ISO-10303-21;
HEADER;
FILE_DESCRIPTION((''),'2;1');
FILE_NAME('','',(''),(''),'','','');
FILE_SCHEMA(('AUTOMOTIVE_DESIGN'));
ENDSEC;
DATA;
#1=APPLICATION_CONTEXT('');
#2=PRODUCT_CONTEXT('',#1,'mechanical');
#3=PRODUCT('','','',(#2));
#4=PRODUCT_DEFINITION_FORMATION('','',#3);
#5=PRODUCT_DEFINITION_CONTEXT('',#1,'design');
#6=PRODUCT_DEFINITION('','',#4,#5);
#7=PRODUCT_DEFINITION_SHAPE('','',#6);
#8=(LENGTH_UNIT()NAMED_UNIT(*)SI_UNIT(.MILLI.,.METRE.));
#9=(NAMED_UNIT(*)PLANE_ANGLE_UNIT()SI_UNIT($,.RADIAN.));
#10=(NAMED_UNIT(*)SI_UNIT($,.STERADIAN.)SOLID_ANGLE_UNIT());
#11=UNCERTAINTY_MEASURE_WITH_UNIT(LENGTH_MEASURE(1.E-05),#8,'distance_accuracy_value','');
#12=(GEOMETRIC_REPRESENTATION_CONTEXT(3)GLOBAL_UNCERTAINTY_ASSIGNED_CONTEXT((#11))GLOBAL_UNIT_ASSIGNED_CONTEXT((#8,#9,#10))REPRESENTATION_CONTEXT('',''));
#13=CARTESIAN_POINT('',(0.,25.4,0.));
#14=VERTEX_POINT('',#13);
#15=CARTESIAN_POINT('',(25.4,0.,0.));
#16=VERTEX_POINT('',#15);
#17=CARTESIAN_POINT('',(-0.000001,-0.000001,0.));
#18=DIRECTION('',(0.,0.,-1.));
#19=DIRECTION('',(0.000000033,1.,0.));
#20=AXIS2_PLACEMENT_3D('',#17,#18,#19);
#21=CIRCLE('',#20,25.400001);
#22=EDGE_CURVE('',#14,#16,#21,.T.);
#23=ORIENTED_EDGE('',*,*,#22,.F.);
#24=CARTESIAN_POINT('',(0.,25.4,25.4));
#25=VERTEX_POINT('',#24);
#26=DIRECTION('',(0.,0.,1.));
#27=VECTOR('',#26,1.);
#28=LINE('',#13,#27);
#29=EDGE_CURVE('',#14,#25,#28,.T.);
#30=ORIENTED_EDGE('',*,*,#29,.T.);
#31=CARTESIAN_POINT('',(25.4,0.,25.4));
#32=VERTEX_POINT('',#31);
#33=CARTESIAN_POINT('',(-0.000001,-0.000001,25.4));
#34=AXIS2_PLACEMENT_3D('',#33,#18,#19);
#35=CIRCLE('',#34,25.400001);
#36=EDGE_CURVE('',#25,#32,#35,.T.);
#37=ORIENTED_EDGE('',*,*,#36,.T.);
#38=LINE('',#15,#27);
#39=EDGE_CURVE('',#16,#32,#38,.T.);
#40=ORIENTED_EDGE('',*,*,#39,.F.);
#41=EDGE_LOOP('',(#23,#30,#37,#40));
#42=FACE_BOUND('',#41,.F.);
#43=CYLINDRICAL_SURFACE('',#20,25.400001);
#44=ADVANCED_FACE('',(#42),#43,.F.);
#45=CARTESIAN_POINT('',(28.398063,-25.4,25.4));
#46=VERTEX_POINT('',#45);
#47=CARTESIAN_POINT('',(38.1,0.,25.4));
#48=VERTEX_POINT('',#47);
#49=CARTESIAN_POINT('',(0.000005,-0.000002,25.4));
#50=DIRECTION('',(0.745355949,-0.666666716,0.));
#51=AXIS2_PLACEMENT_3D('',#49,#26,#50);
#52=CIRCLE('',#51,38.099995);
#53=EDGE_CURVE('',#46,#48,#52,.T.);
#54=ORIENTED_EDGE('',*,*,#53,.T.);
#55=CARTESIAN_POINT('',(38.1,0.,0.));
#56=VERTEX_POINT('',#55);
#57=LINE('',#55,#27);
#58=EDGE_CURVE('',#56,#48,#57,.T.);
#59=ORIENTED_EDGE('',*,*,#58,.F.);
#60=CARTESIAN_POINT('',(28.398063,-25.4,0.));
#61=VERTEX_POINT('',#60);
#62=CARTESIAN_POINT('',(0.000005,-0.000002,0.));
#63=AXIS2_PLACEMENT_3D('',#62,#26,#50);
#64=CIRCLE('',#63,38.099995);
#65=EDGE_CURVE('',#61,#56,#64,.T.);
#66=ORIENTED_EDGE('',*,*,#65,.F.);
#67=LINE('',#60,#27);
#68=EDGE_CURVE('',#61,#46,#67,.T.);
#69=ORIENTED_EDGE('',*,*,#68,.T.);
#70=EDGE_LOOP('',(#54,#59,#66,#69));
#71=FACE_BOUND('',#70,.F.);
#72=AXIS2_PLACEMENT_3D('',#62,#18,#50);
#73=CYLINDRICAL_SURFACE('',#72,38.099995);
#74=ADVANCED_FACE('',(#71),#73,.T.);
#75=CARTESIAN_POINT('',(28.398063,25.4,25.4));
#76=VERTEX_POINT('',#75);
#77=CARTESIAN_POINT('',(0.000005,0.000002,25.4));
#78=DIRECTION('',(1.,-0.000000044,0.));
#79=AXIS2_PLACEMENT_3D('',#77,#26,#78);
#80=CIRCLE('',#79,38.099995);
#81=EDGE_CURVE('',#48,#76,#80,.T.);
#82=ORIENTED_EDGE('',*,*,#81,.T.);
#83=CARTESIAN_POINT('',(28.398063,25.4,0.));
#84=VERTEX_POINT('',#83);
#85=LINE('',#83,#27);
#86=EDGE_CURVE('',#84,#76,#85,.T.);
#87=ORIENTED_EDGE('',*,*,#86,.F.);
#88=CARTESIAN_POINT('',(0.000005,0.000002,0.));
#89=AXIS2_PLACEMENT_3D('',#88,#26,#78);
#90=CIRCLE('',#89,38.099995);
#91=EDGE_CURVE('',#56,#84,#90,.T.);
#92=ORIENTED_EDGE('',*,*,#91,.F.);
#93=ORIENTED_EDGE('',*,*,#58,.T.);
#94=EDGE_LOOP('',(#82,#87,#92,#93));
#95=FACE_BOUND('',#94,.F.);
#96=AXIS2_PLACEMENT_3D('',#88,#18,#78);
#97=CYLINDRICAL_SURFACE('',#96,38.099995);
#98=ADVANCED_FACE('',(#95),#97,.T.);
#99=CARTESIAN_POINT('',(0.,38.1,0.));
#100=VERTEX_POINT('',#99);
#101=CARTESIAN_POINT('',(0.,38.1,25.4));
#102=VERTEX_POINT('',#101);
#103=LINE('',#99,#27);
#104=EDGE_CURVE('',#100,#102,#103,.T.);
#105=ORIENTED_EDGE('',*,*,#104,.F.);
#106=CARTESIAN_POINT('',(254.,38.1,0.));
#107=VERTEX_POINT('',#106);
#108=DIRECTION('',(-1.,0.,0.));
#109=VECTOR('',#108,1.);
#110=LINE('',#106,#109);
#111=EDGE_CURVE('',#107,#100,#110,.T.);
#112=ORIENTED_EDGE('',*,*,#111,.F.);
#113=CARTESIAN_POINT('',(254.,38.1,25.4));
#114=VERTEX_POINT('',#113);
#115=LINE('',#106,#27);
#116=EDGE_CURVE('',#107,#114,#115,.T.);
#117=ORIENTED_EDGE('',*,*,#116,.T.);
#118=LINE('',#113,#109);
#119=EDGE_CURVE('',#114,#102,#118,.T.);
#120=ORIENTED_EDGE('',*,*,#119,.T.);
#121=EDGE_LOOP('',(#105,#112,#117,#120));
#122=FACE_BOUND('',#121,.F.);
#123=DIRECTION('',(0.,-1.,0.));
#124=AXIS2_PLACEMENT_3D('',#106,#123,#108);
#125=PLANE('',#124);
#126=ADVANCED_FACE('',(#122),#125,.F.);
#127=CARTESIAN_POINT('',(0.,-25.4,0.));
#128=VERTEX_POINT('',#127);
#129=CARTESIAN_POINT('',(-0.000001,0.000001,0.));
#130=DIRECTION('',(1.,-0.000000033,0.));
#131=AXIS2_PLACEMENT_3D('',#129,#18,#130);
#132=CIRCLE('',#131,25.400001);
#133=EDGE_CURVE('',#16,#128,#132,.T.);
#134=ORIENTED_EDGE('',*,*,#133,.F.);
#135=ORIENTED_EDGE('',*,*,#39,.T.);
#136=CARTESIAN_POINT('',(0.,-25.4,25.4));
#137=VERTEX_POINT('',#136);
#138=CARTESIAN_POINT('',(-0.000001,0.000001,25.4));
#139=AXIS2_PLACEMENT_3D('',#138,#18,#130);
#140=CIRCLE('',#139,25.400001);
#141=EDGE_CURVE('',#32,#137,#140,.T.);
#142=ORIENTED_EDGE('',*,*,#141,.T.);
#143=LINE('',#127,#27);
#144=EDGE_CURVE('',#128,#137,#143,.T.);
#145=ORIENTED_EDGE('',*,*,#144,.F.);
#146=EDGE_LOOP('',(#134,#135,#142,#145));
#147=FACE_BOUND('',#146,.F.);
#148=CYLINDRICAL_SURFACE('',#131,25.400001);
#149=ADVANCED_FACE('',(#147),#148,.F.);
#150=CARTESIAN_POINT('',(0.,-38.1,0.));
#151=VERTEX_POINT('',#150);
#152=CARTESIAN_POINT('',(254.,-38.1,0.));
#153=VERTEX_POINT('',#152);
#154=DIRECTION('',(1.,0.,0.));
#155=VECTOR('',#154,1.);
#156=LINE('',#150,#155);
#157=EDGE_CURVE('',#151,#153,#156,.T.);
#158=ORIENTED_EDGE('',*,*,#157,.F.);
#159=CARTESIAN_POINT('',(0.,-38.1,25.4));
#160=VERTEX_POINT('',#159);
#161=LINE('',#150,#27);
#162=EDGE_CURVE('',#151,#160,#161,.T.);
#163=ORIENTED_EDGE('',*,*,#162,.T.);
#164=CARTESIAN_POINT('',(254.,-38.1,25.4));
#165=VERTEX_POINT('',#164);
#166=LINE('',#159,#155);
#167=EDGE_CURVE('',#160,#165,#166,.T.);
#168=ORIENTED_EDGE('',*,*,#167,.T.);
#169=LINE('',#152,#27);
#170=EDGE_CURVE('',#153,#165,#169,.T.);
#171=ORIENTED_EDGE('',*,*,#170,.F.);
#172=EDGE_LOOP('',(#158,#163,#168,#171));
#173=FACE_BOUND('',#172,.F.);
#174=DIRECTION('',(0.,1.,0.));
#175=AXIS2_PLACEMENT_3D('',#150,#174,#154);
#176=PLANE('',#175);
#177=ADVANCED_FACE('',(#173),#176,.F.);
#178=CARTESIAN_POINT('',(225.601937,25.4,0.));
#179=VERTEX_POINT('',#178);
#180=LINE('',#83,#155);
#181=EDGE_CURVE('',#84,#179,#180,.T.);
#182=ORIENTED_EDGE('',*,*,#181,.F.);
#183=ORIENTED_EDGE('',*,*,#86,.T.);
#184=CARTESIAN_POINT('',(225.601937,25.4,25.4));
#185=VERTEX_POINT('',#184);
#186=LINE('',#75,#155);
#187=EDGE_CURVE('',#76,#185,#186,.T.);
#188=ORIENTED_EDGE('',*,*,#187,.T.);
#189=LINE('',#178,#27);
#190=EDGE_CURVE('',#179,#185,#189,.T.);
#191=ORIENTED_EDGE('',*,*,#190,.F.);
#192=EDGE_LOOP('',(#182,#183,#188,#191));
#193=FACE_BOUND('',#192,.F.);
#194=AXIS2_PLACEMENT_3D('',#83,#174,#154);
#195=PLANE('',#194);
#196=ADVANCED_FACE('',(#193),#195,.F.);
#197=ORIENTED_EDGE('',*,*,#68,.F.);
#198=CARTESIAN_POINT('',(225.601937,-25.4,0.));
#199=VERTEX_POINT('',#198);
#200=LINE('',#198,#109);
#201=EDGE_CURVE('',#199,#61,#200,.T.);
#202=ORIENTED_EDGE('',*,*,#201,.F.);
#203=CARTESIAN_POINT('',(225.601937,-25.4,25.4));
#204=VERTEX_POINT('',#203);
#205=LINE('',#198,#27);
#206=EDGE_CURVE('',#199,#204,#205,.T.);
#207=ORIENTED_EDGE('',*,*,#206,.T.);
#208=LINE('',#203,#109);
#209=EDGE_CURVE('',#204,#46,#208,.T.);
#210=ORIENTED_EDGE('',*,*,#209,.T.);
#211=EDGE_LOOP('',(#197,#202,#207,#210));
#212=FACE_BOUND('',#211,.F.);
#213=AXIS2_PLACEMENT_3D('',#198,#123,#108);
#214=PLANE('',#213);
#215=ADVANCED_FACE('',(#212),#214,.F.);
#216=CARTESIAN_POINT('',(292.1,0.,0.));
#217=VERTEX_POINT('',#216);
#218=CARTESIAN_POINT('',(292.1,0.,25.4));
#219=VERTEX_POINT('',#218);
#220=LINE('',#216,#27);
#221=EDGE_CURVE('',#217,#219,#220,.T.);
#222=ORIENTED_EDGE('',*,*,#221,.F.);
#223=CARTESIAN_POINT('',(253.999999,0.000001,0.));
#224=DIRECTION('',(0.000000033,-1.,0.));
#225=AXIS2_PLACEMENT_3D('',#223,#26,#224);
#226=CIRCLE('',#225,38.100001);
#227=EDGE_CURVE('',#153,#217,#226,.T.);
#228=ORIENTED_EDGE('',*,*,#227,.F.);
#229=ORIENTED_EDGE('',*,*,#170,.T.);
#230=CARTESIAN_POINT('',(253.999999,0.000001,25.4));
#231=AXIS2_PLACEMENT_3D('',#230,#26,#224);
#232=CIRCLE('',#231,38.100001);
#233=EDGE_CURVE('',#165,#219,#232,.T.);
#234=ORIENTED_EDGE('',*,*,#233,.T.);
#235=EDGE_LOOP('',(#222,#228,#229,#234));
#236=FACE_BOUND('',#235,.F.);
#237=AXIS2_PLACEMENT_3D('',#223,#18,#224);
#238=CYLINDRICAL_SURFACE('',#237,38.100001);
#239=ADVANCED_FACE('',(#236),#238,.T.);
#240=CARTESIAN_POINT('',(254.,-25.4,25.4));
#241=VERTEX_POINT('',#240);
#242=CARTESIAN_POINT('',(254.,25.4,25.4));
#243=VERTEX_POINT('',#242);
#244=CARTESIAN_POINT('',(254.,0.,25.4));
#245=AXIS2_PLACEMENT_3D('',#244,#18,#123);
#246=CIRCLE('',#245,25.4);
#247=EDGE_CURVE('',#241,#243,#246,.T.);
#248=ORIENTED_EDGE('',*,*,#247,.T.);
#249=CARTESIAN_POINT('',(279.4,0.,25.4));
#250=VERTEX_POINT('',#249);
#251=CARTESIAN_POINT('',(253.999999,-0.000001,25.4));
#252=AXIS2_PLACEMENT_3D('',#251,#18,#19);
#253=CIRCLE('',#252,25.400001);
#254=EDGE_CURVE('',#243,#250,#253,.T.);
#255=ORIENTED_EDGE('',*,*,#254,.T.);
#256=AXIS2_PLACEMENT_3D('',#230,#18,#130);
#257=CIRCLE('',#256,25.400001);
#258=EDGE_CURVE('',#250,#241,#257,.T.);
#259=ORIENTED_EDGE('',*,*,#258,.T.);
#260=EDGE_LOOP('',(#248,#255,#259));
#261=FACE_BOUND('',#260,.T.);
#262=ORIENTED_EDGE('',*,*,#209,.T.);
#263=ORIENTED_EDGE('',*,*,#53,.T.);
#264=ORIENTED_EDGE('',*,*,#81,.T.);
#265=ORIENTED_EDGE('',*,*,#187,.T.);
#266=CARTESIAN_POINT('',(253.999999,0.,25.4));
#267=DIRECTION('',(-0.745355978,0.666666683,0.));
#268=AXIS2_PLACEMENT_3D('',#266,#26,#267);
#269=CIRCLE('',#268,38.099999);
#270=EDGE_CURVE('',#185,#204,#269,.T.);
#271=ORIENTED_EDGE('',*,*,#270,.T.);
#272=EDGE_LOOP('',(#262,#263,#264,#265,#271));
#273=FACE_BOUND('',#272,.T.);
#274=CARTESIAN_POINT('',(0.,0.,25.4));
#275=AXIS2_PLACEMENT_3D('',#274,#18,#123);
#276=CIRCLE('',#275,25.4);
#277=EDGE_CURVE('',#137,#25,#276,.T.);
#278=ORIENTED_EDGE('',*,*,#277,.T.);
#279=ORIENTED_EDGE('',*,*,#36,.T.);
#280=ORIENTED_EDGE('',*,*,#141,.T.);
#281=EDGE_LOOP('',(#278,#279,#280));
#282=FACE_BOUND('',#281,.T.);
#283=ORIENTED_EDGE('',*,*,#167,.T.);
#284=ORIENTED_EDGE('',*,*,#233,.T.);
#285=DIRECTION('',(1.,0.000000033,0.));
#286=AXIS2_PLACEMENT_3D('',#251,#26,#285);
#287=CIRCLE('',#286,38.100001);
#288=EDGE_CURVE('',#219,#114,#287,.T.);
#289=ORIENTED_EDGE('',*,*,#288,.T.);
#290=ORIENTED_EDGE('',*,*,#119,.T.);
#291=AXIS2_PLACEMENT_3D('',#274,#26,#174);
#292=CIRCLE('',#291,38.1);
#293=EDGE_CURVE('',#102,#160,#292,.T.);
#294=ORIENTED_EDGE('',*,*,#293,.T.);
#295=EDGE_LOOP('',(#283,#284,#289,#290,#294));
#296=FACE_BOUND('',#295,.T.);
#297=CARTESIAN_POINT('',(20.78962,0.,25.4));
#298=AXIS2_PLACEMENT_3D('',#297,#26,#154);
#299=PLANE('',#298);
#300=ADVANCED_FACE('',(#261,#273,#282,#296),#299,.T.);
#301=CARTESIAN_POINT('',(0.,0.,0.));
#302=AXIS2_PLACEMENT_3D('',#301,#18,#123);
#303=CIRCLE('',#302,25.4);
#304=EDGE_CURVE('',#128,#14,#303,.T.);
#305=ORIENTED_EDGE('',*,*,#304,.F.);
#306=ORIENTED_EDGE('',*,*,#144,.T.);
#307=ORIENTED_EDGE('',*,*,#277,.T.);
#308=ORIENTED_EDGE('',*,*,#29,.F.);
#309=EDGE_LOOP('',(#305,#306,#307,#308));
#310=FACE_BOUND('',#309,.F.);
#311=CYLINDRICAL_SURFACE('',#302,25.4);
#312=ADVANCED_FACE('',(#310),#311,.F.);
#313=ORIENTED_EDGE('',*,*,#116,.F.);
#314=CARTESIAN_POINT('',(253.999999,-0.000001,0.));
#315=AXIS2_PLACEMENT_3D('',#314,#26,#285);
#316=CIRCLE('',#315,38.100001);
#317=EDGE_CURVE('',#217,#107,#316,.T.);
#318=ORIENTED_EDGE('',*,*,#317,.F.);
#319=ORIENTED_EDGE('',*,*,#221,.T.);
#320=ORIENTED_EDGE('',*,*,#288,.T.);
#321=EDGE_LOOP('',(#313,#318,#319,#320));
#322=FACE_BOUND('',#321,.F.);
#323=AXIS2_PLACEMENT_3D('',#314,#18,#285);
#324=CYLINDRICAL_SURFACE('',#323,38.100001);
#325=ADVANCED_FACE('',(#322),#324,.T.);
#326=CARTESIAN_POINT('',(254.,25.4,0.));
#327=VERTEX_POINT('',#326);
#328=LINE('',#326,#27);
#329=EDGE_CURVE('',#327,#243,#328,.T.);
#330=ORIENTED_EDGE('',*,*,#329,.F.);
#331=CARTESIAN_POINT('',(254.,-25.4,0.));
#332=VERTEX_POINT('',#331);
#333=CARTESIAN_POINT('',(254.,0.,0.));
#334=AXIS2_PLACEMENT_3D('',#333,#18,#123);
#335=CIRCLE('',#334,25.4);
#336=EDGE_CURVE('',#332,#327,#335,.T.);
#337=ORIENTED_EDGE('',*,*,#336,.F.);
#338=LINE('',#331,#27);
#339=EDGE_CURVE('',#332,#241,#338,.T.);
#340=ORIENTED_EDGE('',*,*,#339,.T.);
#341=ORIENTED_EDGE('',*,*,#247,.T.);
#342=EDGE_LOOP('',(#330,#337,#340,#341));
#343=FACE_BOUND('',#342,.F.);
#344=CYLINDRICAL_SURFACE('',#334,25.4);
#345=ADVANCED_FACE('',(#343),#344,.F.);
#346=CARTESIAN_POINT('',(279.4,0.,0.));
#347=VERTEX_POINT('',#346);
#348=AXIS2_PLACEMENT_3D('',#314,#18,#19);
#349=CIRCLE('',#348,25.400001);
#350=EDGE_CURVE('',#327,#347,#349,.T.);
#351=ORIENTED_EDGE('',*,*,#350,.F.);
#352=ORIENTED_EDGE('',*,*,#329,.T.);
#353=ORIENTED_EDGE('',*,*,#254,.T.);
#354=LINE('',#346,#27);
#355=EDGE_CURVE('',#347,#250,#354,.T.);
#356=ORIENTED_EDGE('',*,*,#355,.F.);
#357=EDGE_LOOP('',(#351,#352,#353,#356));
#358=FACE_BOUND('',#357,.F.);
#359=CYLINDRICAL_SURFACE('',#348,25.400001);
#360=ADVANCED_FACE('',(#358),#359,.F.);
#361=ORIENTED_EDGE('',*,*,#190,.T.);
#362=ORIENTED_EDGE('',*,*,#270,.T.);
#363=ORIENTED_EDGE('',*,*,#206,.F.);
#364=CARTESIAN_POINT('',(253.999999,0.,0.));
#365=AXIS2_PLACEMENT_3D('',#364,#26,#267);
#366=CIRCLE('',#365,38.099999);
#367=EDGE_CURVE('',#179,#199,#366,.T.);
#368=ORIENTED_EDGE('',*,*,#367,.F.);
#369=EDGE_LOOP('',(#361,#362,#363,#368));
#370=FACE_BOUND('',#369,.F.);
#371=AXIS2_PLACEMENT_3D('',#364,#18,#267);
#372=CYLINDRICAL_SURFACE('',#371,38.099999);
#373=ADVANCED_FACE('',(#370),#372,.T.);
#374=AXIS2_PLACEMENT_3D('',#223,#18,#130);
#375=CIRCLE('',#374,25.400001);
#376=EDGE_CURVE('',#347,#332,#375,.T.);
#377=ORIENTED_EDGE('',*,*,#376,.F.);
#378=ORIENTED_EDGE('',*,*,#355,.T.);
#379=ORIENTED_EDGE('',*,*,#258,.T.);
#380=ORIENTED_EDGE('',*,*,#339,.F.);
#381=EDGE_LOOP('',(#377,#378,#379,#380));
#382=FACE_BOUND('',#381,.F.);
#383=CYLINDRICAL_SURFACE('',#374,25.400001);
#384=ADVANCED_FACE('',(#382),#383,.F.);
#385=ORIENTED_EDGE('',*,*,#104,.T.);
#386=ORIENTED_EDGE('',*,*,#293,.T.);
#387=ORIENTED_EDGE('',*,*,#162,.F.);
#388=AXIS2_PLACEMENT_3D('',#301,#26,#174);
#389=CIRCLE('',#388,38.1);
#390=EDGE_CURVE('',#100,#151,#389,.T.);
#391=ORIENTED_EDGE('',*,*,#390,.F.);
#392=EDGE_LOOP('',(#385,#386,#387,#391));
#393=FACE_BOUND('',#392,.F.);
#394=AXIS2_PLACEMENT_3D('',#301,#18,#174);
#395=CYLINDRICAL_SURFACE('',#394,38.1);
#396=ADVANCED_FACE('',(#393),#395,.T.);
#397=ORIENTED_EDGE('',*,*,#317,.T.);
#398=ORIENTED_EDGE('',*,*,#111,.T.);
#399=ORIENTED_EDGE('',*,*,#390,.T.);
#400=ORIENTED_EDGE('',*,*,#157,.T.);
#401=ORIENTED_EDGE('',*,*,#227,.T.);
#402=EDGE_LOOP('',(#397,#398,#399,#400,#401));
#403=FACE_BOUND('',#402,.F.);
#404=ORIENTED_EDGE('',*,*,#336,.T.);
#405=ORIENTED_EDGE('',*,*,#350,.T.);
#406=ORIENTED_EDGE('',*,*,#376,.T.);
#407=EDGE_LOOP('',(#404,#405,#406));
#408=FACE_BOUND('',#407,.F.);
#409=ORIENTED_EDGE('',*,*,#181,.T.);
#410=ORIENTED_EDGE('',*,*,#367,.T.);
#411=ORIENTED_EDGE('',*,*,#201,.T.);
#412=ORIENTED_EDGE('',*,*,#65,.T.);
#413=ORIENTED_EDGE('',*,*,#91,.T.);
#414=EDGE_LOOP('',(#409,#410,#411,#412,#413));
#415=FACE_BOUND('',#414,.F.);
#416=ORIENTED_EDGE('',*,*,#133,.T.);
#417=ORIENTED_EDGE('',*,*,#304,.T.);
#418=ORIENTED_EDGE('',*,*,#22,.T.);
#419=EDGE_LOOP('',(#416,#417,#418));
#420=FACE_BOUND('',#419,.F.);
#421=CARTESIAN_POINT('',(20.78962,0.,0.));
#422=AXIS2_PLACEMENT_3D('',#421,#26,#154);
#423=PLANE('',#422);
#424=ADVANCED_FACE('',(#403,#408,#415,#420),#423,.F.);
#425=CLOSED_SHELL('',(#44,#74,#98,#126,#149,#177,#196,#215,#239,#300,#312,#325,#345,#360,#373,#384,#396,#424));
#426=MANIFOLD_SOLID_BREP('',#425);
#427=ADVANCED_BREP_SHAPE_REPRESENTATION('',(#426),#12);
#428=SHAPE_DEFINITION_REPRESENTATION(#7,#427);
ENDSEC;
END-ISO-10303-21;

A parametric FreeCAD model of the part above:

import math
import FreeCAD as App
import Part
import Sketcher
from FreeCAD import Vector
Q = App.Units.Quantity

doc = App.newDocument("Part")
params = doc.addObject("Spreadsheet::Sheet", "Params")
for row, (alias, value) in enumerate([
    ("sketch1_radius", "1 in"),
    ("sketch1_radius2", "1.5 in"),
    ("sketch1_width", "10 in"),
    ("pad1_length", "1 in"),
], start=1):
    params.set(f"A{row}", alias)
    params.set(f"B{row}", "=" + value)
    params.setAlias(f"B{row}", alias)

body = doc.addObject("PartDesign::Body", "Body")

# Sketch on XY plane
sketch1 = doc.addObject("Sketcher::SketchObject", "Sketch")
body.addObject(sketch1)
sketch1.AttachmentSupport = (doc.XY_Plane, [""])
sketch1.MapMode = "FlatFace"
sketch1.addGeometry([
    Part.LineSegment(Vector(254, 38, 0), Vector(0, 38, 0)),  # 0
    Part.ArcOfCircle(Part.Circle(Vector(0, 0, 0), Vector(0, 0, 1), 38), math.radians(90), math.radians(270)),  # 1
    Part.LineSegment(Vector(0, -38, 0), Vector(254, -38, 0)),  # 2
    Part.ArcOfCircle(Part.Circle(Vector(254, 0, 0), Vector(0, 0, 1), 38), math.radians(-90), math.radians(0)),  # 3
    Part.ArcOfCircle(Part.Circle(Vector(254, 0, 0), Vector(0, 0, 1), 38), math.radians(0), math.radians(90)),  # 4
    Part.ArcOfCircle(Part.Circle(Vector(0, 0, 0), Vector(0, 0, 1), 25), math.radians(0), math.radians(90)),  # 5
    Part.ArcOfCircle(Part.Circle(Vector(0, 0, 0), Vector(0, 0, 1), 25), math.radians(-90), math.radians(0)),  # 6
    Part.ArcOfCircle(Part.Circle(Vector(0, 0, 0), Vector(0, 0, 1), 25), math.radians(90), math.radians(270)),  # 7
    Part.ArcOfCircle(Part.Circle(Vector(0, 0, 0), Vector(0, 0, 1), 38), math.radians(-42), math.radians(0)),  # 8
    Part.ArcOfCircle(Part.Circle(Vector(0, 0, 0), Vector(0, 0, 1), 38), math.radians(0), math.radians(42)),  # 9
    Part.LineSegment(Vector(28, 25, 0), Vector(226, 25, 0)),  # 10
    Part.ArcOfCircle(Part.Circle(Vector(254, 0, 0), Vector(0, 0, 1), 38), math.radians(138), math.radians(222)),  # 11
    Part.LineSegment(Vector(226, -25, 0), Vector(28, -25, 0)),  # 12
    Part.ArcOfCircle(Part.Circle(Vector(254, 0, 0), Vector(0, 0, 1), 25), math.radians(0), math.radians(90)),  # 13
    Part.ArcOfCircle(Part.Circle(Vector(254, 0, 0), Vector(0, 0, 1), 25), math.radians(-90), math.radians(0)),  # 14
    Part.ArcOfCircle(Part.Circle(Vector(254, 0, 0), Vector(0, 0, 1), 25), math.radians(90), math.radians(270)),  # 15
], False)
sketch1.addConstraint([
    Sketcher.Constraint("Tangent", 0, 2, 1, 1),
    Sketcher.Constraint("Tangent", 1, 2, 2, 1),
    Sketcher.Constraint("Tangent", 2, 2, 3, 1),
    Sketcher.Constraint("Tangent", 3, 2, 4, 1),
    Sketcher.Constraint("Tangent", 4, 2, 0, 1),
    Sketcher.Constraint("Tangent", 5, 1, 6, 2),
    Sketcher.Constraint("Tangent", 6, 1, 7, 2),
    Sketcher.Constraint("Tangent", 7, 1, 5, 2),
    Sketcher.Constraint("Tangent", 8, 2, 9, 1),
    Sketcher.Constraint("Coincident", 9, 2, 10, 1),
    Sketcher.Constraint("Coincident", 10, 2, 11, 1),
    Sketcher.Constraint("Coincident", 11, 2, 12, 1),
    Sketcher.Constraint("Coincident", 12, 2, 8, 1),
    Sketcher.Constraint("Tangent", 13, 1, 14, 2),
    Sketcher.Constraint("Tangent", 14, 1, 15, 2),
    Sketcher.Constraint("Tangent", 15, 1, 13, 2),
    Sketcher.Constraint("Horizontal", 0),
    Sketcher.Constraint("Horizontal", 2),
    Sketcher.Constraint("Horizontal", 10),
    Sketcher.Constraint("Horizontal", 12),
    Sketcher.Constraint("Coincident", 1, 3, -1, 1),
    Sketcher.Constraint("Coincident", 5, 3, -1, 1),
    Sketcher.Constraint("Coincident", 8, 3, -1, 1),
    Sketcher.Constraint("Coincident", 11, 3, 3, 3),
    Sketcher.Constraint("Coincident", 13, 3, 3, 3),
    Sketcher.Constraint("Equal", 1, 3),
    Sketcher.Constraint("Equal", 8, 9),
    Sketcher.Constraint("Equal", 1, 11),
    Sketcher.Constraint("Equal", 7, 13),
    Sketcher.Constraint("PointOnObject", 3, 2, -1),
    Sketcher.Constraint("PointOnObject", 5, 1, -1),
    Sketcher.Constraint("PointOnObject", 6, 1, -2),
    Sketcher.Constraint("PointOnObject", 7, 1, -2),
    Sketcher.Constraint("PointOnObject", 8, 2, -1),
    Sketcher.Constraint("PointOnObject", 13, 1, -1),
    Sketcher.Constraint("Horizontal", 7, 1, 9, 2),
    Sketcher.Constraint("Horizontal", 6, 1, 11, 2),
    Sketcher.Constraint("Vertical", 4, 2, 14, 1),
    Sketcher.Constraint("Vertical", 14, 1, 15, 1),
    Sketcher.Constraint("Radius", 5, Q("1 in")),
    Sketcher.Constraint("Radius", 1, Q("1.5 in")),
    Sketcher.Constraint("DistanceX", 0, 2, 0, 1, Q("10 in")),
    Sketcher.Constraint("DistanceX", -1, 1, 8, 2, Q("1.5 in")),
])
sketch1.setExpression("Constraints[39]", "Params.sketch1_radius")
sketch1.setExpression("Constraints[40]", "Params.sketch1_radius2")
sketch1.setExpression("Constraints[41]", "Params.sketch1_width")
pad1 = doc.addObject("PartDesign::Pad", "Pad")
body.addObject(pad1)
pad1.Profile = sketch1
pad1.setExpression("Length", "Params.pad1_length")

doc.recompute()
